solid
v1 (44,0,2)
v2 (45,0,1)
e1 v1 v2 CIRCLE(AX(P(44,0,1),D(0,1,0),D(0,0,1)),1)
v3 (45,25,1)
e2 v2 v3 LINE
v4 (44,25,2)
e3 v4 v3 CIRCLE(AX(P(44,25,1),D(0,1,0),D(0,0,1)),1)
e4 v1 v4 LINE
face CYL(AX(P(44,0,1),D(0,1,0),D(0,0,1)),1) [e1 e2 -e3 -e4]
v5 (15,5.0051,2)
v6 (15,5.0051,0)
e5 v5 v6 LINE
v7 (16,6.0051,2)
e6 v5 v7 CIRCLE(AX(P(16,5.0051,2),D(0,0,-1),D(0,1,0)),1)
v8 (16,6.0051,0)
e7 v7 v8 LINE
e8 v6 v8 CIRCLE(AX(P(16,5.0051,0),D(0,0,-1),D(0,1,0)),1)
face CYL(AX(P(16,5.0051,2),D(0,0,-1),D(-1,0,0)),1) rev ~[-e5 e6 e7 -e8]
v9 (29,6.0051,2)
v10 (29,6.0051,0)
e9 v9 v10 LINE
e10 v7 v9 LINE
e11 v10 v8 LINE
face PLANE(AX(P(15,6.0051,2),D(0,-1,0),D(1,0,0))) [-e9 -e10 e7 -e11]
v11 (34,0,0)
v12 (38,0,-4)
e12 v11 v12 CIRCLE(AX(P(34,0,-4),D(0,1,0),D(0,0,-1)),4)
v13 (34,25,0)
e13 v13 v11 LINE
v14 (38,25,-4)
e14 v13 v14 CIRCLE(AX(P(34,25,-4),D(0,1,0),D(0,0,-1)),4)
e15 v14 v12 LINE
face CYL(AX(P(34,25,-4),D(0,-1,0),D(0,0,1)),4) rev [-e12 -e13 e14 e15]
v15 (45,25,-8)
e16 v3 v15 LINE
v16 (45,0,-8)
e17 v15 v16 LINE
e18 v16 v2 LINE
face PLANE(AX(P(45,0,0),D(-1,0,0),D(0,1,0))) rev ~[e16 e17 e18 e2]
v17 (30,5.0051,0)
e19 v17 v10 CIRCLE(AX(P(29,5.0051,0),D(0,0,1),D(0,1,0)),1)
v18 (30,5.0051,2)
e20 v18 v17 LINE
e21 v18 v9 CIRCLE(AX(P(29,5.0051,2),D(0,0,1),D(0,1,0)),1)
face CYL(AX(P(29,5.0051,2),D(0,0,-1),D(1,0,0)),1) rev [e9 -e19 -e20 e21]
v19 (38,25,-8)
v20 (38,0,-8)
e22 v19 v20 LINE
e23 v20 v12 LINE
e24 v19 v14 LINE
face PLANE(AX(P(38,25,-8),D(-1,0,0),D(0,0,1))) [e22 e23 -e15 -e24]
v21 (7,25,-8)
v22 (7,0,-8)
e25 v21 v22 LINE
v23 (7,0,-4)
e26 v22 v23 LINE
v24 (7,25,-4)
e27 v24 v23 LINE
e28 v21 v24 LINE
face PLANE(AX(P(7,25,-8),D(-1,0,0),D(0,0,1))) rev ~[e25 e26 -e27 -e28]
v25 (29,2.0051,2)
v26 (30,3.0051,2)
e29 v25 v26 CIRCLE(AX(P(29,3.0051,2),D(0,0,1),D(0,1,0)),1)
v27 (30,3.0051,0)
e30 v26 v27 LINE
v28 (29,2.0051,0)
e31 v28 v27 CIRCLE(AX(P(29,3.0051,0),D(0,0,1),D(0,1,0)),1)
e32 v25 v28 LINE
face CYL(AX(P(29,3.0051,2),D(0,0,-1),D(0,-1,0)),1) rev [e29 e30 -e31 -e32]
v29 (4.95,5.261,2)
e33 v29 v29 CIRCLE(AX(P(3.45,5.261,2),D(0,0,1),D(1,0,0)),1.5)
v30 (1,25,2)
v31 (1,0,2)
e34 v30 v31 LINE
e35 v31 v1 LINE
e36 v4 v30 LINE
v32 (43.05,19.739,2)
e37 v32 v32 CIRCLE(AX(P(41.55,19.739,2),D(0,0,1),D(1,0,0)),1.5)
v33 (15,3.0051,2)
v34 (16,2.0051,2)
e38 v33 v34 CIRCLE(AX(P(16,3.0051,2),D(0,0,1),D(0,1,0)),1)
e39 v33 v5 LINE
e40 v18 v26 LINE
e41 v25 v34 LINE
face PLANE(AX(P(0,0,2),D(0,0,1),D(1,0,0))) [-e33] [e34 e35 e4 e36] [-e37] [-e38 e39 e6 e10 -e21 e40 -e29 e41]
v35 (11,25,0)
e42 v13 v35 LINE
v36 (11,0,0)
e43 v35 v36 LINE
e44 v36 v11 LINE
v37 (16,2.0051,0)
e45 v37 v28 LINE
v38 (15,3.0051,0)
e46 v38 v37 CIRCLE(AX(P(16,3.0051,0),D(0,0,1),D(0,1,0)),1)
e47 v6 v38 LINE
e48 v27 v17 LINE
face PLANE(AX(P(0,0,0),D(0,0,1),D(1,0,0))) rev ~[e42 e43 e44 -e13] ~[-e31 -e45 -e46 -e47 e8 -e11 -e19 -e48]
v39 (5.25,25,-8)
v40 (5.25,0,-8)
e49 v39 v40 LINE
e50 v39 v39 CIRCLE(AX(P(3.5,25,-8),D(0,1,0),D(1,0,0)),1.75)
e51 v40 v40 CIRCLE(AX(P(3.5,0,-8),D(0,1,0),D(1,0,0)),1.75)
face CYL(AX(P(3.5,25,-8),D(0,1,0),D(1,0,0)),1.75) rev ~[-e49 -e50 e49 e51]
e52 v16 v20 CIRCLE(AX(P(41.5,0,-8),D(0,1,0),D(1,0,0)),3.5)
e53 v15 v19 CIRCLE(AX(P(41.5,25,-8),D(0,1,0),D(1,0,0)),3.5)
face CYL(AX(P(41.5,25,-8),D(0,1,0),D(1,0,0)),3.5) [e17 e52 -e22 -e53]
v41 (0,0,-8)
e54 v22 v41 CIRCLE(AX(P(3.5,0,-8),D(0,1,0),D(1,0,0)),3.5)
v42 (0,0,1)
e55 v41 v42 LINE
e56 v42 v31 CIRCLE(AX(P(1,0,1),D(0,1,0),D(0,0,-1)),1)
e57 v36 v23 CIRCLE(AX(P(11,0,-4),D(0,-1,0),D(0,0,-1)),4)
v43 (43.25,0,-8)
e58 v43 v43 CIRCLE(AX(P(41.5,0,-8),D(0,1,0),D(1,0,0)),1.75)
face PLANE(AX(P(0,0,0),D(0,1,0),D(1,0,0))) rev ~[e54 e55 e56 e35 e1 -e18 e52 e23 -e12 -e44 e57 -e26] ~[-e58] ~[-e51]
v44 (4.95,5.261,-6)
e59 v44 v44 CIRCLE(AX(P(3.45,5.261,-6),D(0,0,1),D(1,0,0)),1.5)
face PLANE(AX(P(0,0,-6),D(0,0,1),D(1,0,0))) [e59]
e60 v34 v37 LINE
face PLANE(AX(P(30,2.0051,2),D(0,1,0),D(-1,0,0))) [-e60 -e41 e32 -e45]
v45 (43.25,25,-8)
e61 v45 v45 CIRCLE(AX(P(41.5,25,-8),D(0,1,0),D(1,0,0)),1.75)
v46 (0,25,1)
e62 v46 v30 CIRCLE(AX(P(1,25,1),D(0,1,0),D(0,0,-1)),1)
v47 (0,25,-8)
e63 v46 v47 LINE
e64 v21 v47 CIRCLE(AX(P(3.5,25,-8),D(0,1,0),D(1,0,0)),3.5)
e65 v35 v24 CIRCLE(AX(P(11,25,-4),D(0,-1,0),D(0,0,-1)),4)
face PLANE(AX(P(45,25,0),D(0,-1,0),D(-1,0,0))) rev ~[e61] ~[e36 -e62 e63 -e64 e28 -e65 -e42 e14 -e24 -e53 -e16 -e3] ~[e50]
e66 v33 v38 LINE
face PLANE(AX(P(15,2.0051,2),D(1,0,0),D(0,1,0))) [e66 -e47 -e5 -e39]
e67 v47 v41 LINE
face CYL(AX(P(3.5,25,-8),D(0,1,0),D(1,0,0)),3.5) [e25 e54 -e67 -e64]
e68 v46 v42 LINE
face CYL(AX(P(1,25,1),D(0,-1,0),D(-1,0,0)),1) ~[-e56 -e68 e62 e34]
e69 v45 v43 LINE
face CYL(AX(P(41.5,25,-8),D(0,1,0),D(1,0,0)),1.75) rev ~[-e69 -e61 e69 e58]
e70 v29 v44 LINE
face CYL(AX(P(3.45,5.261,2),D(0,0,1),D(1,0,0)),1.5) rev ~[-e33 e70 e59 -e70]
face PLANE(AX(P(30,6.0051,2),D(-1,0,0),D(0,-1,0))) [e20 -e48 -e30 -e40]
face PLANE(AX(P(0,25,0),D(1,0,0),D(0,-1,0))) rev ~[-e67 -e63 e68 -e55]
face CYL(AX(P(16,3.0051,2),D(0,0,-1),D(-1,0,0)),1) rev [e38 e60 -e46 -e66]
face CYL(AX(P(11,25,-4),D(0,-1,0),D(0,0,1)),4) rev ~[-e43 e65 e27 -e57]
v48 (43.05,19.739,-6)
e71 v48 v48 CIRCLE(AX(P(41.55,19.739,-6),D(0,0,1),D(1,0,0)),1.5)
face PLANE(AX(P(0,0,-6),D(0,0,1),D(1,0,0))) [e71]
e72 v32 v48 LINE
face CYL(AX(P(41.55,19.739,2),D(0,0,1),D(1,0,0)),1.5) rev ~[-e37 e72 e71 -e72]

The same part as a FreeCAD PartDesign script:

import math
import FreeCAD as App
import Part
import Sketcher
from FreeCAD import Vector


def edges_at(feature, points):
    """Names of the edges that pass closest to the given points."""
    edges = feature.Shape.Edges
    near = lambda p: min(range(len(edges)), key=lambda i: edges[i].distToShape(Part.Vertex(*p))[0])
    return sorted({f"Edge{near(p) + 1}" for p in points})


def add_polygon(sketch, points):
    """Adds a closed chain of lines whose ends are joined by coincident constraints."""
    first, n = sketch.GeometryCount, len(points)
    for a, b in zip(points, points[1:] + points[:1]):
        sketch.addGeometry(Part.LineSegment(App.Vector(*a, 0), App.Vector(*b, 0)), False)
    for i in range(n):
        sketch.addConstraint(Sketcher.Constraint("Coincident", first + i, 2, first + (i + 1) % n, 1))

doc = App.newDocument("Part")
body = doc.addObject("PartDesign::Body", "Body")

# Sketch on XY plane
sketch1 = body.newObject("Sketcher::SketchObject", "Sketch")
sketch1.AttachmentSupport = (doc.getObject("XY_Plane"), [""])
sketch1.MapMode = "FlatFace"
add_polygon(sketch1, [(0, 25), (0, 0), (45, 0), (45, 25)])  # lines 0-3
sketch1.addConstraint(Sketcher.Constraint("Vertical", 0))
sketch1.addConstraint(Sketcher.Constraint("Horizontal", 1))
sketch1.addConstraint(Sketcher.Constraint("Vertical", 2))
sketch1.addConstraint(Sketcher.Constraint("Horizontal", 3))
sketch1.addConstraint(Sketcher.Constraint("Coincident", 0, 2, -1, 1))
sketch1.addConstraint(Sketcher.Constraint("DistanceX", 1, 1, 1, 2, 45.0))
sketch1.addConstraint(Sketcher.Constraint("DistanceY", 0, 2, 0, 1, 25.0))
pad1 = body.newObject("PartDesign::Pad", "Pad")
pad1.Profile = sketch1
pad1.Length = 2

# Sketch on XZ plane
sketch2 = body.newObject("Sketcher::SketchObject", "Sketch001")
sketch2.AttachmentSupport = (doc.getObject("XZ_Plane"), [""])
sketch2.MapMode = "FlatFace"
sketch2.AttachmentOffset = App.Placement(Vector(0, 0, -25), App.Rotation())
sketch2.addGeometry(Part.LineSegment(Vector(0, -8, 0), Vector(0, 0, 0)), False)
sketch2.addGeometry(Part.LineSegment(Vector(0, 0, 0), Vector(7, 0, 0)), False)
sketch2.addGeometry(Part.LineSegment(Vector(7, 0, 0), Vector(7, -8, 0)), False)
sketch2.addGeometry(Part.ArcOfCircle(Part.Circle(Vector(3.5, -8, 0), Vector(0, 0, 1), 3.5), math.radians(180), math.radians(360)), False)
sketch2.addGeometry(Part.Circle(Vector(3.5, -8, 0), Vector(0, 0, 1), 1.75), False)
sketch2.addGeometry(Part.LineSegment(Vector(38, 0, 0), Vector(45, 0, 0)), False)
sketch2.addGeometry(Part.LineSegment(Vector(45, 0, 0), Vector(45, -8, 0)), False)
sketch2.addGeometry(Part.ArcOfCircle(Part.Circle(Vector(41.5, -8, 0), Vector(0, 0, 1), 3.5), math.radians(180), math.radians(360)), False)
sketch2.addGeometry(Part.LineSegment(Vector(38, -8, 0), Vector(38, 0, 0)), False)
sketch2.addGeometry(Part.Circle(Vector(41.5, -8, 0), Vector(0, 0, 1), 1.75), False)
sketch2.addConstraint(Sketcher.Constraint("Coincident", 0, 2, 1, 1))
sketch2.addConstraint(Sketcher.Constraint("Coincident", 1, 2, 2, 1))
sketch2.addConstraint(Sketcher.Constraint("Tangent", 2, 2, 3, 2))
sketch2.addConstraint(Sketcher.Constraint("Tangent", 3, 1, 0, 1))
sketch2.addConstraint(Sketcher.Constraint("Coincident", 5, 2, 6, 1))
sketch2.addConstraint(Sketcher.Constraint("Tangent", 6, 2, 7, 2))
sketch2.addConstraint(Sketcher.Constraint("Tangent", 7, 1, 8, 1))
sketch2.addConstraint(Sketcher.Constraint("Coincident", 8, 2, 5, 1))
sketch2.addConstraint(Sketcher.Constraint("Vertical", 0))
sketch2.addConstraint(Sketcher.Constraint("Horizontal", 1))
sketch2.addConstraint(Sketcher.Constraint("Vertical", 2))
sketch2.addConstraint(Sketcher.Constraint("Horizontal", 5))
sketch2.addConstraint(Sketcher.Constraint("Vertical", 6))
sketch2.addConstraint(Sketcher.Constraint("Vertical", 8))
sketch2.addConstraint(Sketcher.Constraint("Coincident", 0, 2, -1, 1))
sketch2.addConstraint(Sketcher.Constraint("Coincident", 4, 3, 3, 3))
sketch2.addConstraint(Sketcher.Constraint("Coincident", 9, 3, 7, 3))
sketch2.addConstraint(Sketcher.Constraint("Equal", 3, 7))
sketch2.addConstraint(Sketcher.Constraint("Equal", 4, 9))
sketch2.addConstraint(Sketcher.Constraint("PointOnObject", 5, 2, -1))
sketch2.addConstraint(Sketcher.Constraint("Horizontal", 4, 3, 7, 3))
sketch2.addConstraint(Sketcher.Constraint("Diameter", 4, 3.5))
sketch2.addConstraint(Sketcher.Constraint("Radius", 3, 3.5))
sketch2.addConstraint(Sketcher.Constraint("DistanceY", 0, 1, 0, 2, 8.0))
sketch2.addConstraint(Sketcher.Constraint("DistanceX", -1, 1, 7, 1, 38.0))
pad2 = body.newObject("PartDesign::Pad", "Pad001")
pad2.Profile = sketch2
pad2.Length = 25

# Sketch on XY plane
sketch3 = body.newObject("Sketcher::SketchObject", "Sketch002")
sketch3.AttachmentSupport = (doc.getObject("XY_Plane"), [""])
sketch3.MapMode = "FlatFace"
sketch3.AttachmentOffset = App.Placement(Vector(0, 0, 2), App.Rotation())
sketch3.addGeometry(Part.Circle(Vector(41.55, 19.739, 0), Vector(0, 0, 1), 1.5), False)
sketch3.addGeometry(Part.Circle(Vector(3.45, 5.261, 0), Vector(0, 0, 1), 1.5), False)
sketch3.addConstraint(Sketcher.Constraint("Equal", 0, 1))
sketch3.addConstraint(Sketcher.Constraint("Diameter", 0, 3.0))
sketch3.addConstraint(Sketcher.Constraint("DistanceX", 1, 3, 0, 3, 38.1))
sketch3.addConstraint(Sketcher.Constraint("DistanceY", 1, 3, 0, 3, 14.478))
sketch3.addConstraint(Sketcher.Constraint("DistanceX", -1, 1, 0, 3, 41.55))
sketch3.addConstraint(Sketcher.Constraint("DistanceY", -1, 1, 0, 3, 19.739))
pocket1 = body.newObject("PartDesign::Pocket", "Pocket")
pocket1.Profile = sketch3
pocket1.Length = 8

# Sketch on XY plane
sketch4 = body.newObject("Sketcher::SketchObject", "Sketch003")
sketch4.AttachmentSupport = (doc.getObject("XY_Plane"), [""])
sketch4.MapMode = "FlatFace"
sketch4.AttachmentOffset = App.Placement(Vector(0, 0, 2), App.Rotation())
add_polygon(sketch4, [(30, 6.0051), (15, 6.0051), (15, 2.0051), (30, 2.0051)])  # lines 0-3
sketch4.addConstraint(Sketcher.Constraint("Horizontal", 0))
sketch4.addConstraint(Sketcher.Constraint("Vertical", 1))
sketch4.addConstraint(Sketcher.Constraint("Horizontal", 2))
sketch4.addConstraint(Sketcher.Constraint("Vertical", 3))
sketch4.addConstraint(Sketcher.Constraint("DistanceX", 0, 2, 0, 1, 15.0))
sketch4.addConstraint(Sketcher.Constraint("DistanceY", 1, 2, 1, 1, 4.0))
sketch4.addConstraint(Sketcher.Constraint("DistanceX", -1, 1, 0, 2, 15.0))
sketch4.addConstraint(Sketcher.Constraint("DistanceY", -1, 1, 0, 2, 6.005))
pocket2 = body.newObject("PartDesign::Pocket", "Pocket001")
pocket2.Profile = sketch4
pocket2.Type = "UpToFirst"
doc.recompute()

fillet = body.newObject("PartDesign::Fillet", "Fillet")
fillet.Base = (pocket2, edges_at(pocket2, [
    (15, 6.005, 1),
    (30, 6.005, 1),
    (30, 2.005, 1),
    (15, 2.005, 1),
]))
fillet.Radius = 1
doc.recompute()

fillet2 = body.newObject("PartDesign::Fillet", "Fillet001")
fillet2.Base = (fillet, edges_at(fillet, [(7, 12.5, 0), (38, 12.5, 0)]))
fillet2.Radius = 4
doc.recompute()

fillet3 = body.newObject("PartDesign::Fillet", "Fillet002")
fillet3.Base = (fillet2, edges_at(fillet2, [(0, 12.5, 2), (45, 12.5, 2)]))
fillet3.Radius = 1

doc.recompute()
